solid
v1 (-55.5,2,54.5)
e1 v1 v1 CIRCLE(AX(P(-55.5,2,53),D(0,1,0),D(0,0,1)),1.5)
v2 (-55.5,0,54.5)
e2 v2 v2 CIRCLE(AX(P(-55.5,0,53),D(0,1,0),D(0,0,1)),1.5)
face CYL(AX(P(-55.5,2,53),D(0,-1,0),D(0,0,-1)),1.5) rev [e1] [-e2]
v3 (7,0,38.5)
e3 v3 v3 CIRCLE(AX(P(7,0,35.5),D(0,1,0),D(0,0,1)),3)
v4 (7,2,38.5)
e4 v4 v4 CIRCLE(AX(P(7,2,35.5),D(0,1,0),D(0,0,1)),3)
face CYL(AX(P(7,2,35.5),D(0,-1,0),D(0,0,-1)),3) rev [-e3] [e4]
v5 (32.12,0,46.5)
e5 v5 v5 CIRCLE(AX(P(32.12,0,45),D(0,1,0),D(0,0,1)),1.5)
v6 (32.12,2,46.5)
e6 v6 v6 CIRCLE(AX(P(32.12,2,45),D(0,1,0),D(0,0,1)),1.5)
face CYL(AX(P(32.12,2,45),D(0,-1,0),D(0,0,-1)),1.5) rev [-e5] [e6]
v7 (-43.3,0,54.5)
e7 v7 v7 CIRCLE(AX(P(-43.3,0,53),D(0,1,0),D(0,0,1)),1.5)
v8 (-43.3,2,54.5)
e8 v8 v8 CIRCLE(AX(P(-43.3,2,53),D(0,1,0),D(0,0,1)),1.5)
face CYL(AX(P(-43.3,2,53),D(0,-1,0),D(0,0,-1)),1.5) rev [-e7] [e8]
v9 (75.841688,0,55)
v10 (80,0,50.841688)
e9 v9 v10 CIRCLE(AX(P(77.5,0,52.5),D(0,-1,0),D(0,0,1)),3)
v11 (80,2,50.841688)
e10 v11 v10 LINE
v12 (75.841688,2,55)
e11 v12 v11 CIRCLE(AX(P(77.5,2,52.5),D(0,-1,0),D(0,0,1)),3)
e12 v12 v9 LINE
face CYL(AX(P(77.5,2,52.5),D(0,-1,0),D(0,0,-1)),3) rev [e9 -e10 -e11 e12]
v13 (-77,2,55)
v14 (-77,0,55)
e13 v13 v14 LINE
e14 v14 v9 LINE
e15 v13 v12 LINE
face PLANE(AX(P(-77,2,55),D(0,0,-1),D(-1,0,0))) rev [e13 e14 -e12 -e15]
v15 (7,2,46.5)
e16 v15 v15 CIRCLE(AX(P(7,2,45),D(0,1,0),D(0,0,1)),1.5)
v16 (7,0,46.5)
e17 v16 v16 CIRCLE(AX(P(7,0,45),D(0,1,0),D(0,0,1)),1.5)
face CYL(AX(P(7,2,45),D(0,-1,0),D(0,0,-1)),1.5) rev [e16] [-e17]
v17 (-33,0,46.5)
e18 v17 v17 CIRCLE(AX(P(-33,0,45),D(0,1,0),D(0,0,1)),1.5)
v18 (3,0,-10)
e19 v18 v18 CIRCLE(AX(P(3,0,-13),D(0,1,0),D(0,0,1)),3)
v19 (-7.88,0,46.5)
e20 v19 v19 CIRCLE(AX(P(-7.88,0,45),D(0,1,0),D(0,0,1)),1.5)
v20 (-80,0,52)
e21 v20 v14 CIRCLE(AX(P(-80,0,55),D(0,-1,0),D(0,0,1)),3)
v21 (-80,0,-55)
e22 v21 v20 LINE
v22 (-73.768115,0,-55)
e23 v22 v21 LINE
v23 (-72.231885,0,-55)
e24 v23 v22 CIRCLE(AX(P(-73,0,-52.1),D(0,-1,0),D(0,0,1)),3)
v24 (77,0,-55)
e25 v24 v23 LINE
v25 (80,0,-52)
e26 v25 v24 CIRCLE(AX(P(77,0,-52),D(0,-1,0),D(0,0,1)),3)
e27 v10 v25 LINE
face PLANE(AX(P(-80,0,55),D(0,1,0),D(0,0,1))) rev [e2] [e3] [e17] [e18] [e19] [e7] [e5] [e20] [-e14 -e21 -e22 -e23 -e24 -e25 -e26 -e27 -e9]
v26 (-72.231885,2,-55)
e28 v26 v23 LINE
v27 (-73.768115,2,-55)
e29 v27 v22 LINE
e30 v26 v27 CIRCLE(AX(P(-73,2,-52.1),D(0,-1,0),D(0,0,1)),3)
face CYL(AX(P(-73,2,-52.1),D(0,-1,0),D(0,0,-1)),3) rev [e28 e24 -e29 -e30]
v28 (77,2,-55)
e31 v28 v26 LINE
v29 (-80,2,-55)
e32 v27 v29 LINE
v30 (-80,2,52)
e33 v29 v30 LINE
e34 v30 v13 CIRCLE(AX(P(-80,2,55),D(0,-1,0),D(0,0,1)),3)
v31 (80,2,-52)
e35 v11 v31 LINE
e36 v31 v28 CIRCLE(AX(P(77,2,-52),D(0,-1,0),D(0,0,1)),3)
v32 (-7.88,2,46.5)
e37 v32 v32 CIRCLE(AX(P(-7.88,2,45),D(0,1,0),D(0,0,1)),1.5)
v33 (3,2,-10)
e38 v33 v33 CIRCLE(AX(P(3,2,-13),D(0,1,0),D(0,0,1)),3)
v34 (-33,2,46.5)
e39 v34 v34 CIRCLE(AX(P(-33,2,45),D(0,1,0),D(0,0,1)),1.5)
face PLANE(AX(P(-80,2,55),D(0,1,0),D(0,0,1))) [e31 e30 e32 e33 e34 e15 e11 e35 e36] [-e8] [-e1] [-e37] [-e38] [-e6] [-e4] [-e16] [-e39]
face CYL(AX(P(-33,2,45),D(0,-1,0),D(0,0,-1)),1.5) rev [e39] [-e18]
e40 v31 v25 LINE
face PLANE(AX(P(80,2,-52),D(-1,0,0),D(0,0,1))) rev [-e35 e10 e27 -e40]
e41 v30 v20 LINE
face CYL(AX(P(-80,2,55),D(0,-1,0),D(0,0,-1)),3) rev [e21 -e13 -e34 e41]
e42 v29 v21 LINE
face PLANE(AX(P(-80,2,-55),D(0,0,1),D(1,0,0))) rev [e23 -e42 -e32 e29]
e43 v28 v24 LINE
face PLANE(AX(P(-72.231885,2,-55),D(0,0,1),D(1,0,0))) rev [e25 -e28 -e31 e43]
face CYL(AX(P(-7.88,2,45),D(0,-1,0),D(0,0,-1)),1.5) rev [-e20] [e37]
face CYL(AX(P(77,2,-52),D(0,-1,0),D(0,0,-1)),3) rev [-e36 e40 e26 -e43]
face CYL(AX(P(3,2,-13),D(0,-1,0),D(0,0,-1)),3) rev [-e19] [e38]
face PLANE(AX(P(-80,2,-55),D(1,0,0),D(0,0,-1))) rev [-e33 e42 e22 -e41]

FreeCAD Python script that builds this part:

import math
import FreeCAD as App
import Part
import Sketcher

V = App.Vector

doc = App.newDocument("Part")
body = doc.addObject("PartDesign::Body", "Body")

sketch1 = body.newObject("Sketcher::SketchObject", "Sketch")
sketch1.AttachmentSupport = (doc.getObject("XZ_Plane"), [""])
sketch1.MapMode = "FlatFace"
sketch1.addGeometry(Part.LineSegment(V(-73.8, -55, 0), V(-80, -55, 0)), False)
sketch1.addGeometry(Part.LineSegment(V(-80, -55, 0), V(-80, 52, 0)), False)
sketch1.addGeometry(Part.ArcOfCircle(Part.Circle(V(-80, 55, 0), V(0, 0, 1), 3), math.radians(-90), math.radians(0)), False)
sketch1.addGeometry(Part.LineSegment(V(-77, 55, 0), V(75.8, 55, 0)), False)
sketch1.addGeometry(Part.ArcOfCircle(Part.Circle(V(77.5, 52.5, 0), V(0, 0, 1), 3), math.radians(124), math.radians(326)), False)
sketch1.addGeometry(Part.LineSegment(V(80, 50.8, 0), V(80, -52, 0)), False)
sketch1.addGeometry(Part.ArcOfCircle(Part.Circle(V(77, -52, 0), V(0, 0, 1), 3), math.radians(0), math.radians(270)), False)
sketch1.addGeometry(Part.LineSegment(V(77, -55, 0), V(-72.2, -55, 0)), False)
sketch1.addGeometry(Part.ArcOfCircle(Part.Circle(V(-73, -52.1, 0), V(0, 0, 1), 3), math.radians(-75), math.radians(255)), False)
sketch1.addGeometry(Part.Circle(V(32.1, 45, 0), V(0, 0, 1), 1.5), False)
sketch1.addGeometry(Part.Circle(V(7, 45, 0), V(0, 0, 1), 1.5), False)
sketch1.addGeometry(Part.Circle(V(-7.9, 45, 0), V(0, 0, 1), 1.5), False)
sketch1.addGeometry(Part.Circle(V(7, 35.5, 0), V(0, 0, 1), 3), False)
sketch1.addGeometry(Part.Circle(V(-33, 45, 0), V(0, 0, 1), 1.5), False)
sketch1.addGeometry(Part.Circle(V(-43.3, 53, 0), V(0, 0, 1), 1.5), False)
sketch1.addGeometry(Part.Circle(V(-55.5, 53, 0), V(0, 0, 1), 1.5), False)
sketch1.addGeometry(Part.Circle(V(3, -13, 0), V(0, 0, 1), 3), False)
sketch1.addConstraint(Sketcher.Constraint("Coincident", 0, 2, 1, 1))
sketch1.addConstraint(Sketcher.Constraint("Coincident", 1, 2, 2, 1))
sketch1.addConstraint(Sketcher.Constraint("Coincident", 2, 2, 3, 1))
sketch1.addConstraint(Sketcher.Constraint("Coincident", 3, 2, 4, 1))
sketch1.addConstraint(Sketcher.Constraint("Coincident", 4, 2, 5, 1))
sketch1.addConstraint(Sketcher.Constraint("Tangent", 5, 2, 6, 1))
sketch1.addConstraint(Sketcher.Constraint("Tangent", 6, 2, 7, 1))
sketch1.addConstraint(Sketcher.Constraint("Coincident", 7, 2, 8, 1))
sketch1.addConstraint(Sketcher.Constraint("Coincident", 8, 2, 0, 1))
sketch1.addConstraint(Sketcher.Constraint("Horizontal", 0))
sketch1.addConstraint(Sketcher.Constraint("Vertical", 1))
sketch1.addConstraint(Sketcher.Constraint("Horizontal", 3))
sketch1.addConstraint(Sketcher.Constraint("Vertical", 5))
sketch1.addConstraint(Sketcher.Constraint("Horizontal", 7))
sketch1.addConstraint(Sketcher.Constraint("Equal", 2, 4))
sketch1.addConstraint(Sketcher.Constraint("Equal", 4, 6))
sketch1.addConstraint(Sketcher.Constraint("Equal", 6, 8))
sketch1.addConstraint(Sketcher.Constraint("Equal", 9, 10))
sketch1.addConstraint(Sketcher.Constraint("Equal", 10, 11))
sketch1.addConstraint(Sketcher.Constraint("Equal", 8, 12))
sketch1.addConstraint(Sketcher.Constraint("Equal", 11, 13))
sketch1.addConstraint(Sketcher.Constraint("Equal", 13, 14))
sketch1.addConstraint(Sketcher.Constraint("Equal", 14, 15))
sketch1.addConstraint(Sketcher.Constraint("Equal", 12, 16))
sketch1.addConstraint(Sketcher.Constraint("Symmetric", 1, 2, 5, 2, -1, 1))
sketch1.addConstraint(Sketcher.Constraint("Symmetric", 2, 2, 6, 2, -1, 1))
sketch1.addConstraint(Sketcher.Constraint("Horizontal", 9, 3, 10, 3))
sketch1.addConstraint(Sketcher.Constraint("Horizontal", 10, 3, 11, 3))
sketch1.addConstraint(Sketcher.Constraint("Horizontal", 11, 3, 13, 3))
sketch1.addConstraint(Sketcher.Constraint("Horizontal", 14, 3, 15, 3))
sketch1.addConstraint(Sketcher.Constraint("Horizontal", 0, 2, 6, 2))
sketch1.addConstraint(Sketcher.Constraint("Vertical", 10, 3, 12, 3))
sketch1.addConstraint(Sketcher.Constraint("Diameter", 9, 3.0))
sketch1.addConstraint(Sketcher.Constraint("Diameter", 12, 6.0))
sketch1.addConstraint(Sketcher.Constraint("DistanceY", 1, 1, 1, 2, 107.0))
sketch1.addConstraint(Sketcher.Constraint("DistanceX", 2, 3, -1, 1, 80.0))
sketch1.addConstraint(Sketcher.Constraint("DistanceX", 8, 3, -1, 1, 73.0))
sketch1.addConstraint(Sketcher.Constraint("DistanceY", -1, 1, 9, 3, 45.0))
sketch1.addConstraint(Sketcher.Constraint("DistanceX", -1, 1, 10, 3, 7.0))
sketch1.addConstraint(Sketcher.Constraint("DistanceX", 13, 3, -1, 1, 33.0))
sketch1.addConstraint(Sketcher.Constraint("DistanceY", -1, 1, 14, 3, 53.0))
sketch1.addConstraint(Sketcher.Constraint("DistanceX", -1, 1, 16, 3, 3.0))
sketch1.addConstraint(Sketcher.Constraint("DistanceY", 16, 3, -1, 1, 13.0))
sketch1.addConstraint(Sketcher.Constraint("DistanceX", 11, 3, 9, 3, 40.0))
sketch1.addConstraint(Sketcher.Constraint("DistanceY", 12, 3, 4, 3, 17.0))
sketch1.addConstraint(Sketcher.Constraint("DistanceX", -1, 1, 4, 3, 77.5))
sketch1.addConstraint(Sketcher.Constraint("DistanceY", -1, 1, 4, 3, 52.5))
sketch1.addConstraint(Sketcher.Constraint("DistanceY", 8, 3, -1, 1, 52.1))
sketch1.addConstraint(Sketcher.Constraint("DistanceX", 14, 3, -1, 1, 43.3))
sketch1.addConstraint(Sketcher.Constraint("DistanceX", 15, 3, -1, 1, 55.5))
sketch1.addConstraint(Sketcher.Constraint("DistanceX", -1, 1, 9, 3, 32.12))
pad1 = body.newObject("PartDesign::Pad", "Pad")
pad1.Profile = sketch1
pad1.Length = 2
pad1.Reversed = True

doc.recompute()
